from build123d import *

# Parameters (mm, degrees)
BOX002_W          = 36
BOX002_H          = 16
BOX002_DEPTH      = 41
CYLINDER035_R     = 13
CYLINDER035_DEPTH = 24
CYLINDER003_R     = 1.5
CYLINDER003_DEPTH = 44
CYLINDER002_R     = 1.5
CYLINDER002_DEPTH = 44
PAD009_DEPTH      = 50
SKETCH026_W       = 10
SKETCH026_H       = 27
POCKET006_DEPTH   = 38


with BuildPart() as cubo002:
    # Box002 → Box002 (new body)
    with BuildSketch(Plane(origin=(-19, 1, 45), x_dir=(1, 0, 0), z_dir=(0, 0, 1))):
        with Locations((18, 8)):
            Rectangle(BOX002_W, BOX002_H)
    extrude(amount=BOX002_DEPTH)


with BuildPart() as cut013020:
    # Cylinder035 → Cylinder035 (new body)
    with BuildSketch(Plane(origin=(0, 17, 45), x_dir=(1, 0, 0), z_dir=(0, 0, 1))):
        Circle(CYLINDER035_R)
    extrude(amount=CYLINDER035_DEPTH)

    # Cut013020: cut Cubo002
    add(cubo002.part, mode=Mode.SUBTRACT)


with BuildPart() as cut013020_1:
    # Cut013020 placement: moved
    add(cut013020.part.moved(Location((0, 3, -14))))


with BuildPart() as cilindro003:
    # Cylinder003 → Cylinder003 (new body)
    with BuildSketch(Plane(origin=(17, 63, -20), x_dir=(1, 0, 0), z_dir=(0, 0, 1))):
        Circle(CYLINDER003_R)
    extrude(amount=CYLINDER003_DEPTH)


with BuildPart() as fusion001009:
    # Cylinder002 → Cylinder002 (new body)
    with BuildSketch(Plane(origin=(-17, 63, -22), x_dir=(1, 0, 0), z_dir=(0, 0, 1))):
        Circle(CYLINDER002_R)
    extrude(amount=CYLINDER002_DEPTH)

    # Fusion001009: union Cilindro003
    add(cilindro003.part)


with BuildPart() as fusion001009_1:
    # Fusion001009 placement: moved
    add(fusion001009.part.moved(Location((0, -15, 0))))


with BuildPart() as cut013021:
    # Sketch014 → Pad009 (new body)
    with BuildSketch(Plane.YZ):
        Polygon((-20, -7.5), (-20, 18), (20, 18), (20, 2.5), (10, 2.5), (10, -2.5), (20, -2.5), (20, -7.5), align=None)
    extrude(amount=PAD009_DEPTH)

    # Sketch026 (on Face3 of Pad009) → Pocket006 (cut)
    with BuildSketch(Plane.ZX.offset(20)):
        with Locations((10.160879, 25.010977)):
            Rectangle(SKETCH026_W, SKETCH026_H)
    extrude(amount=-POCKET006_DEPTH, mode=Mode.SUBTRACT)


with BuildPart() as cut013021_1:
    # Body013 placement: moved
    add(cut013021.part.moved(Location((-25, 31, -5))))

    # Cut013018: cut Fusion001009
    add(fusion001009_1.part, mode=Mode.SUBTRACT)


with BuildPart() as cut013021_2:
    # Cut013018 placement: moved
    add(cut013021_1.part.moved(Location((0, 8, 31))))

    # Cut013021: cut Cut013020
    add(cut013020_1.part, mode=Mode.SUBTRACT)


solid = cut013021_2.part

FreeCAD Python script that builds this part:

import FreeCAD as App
import Part
import Sketcher

V = App.Vector
Q = App.Units.Quantity

doc = App.newDocument("Part")
body = doc.addObject("PartDesign::Body", "Body")

sketch1 = doc.addObject("Sketcher::SketchObject", "Sketch")
body.addObject(sketch1)
sketch1.AttachmentSupport = (doc.XY_Plane, [""])
sketch1.MapMode = "FlatFace"
sketch1.AttachmentOffset = App.Placement(V(0, 0, 45), App.Rotation())
sketch1.addGeometry([
    Part.LineSegment(V(-19, 17, 0), V(-19, 1, 0)),
    Part.LineSegment(V(-19, 1, 0), V(17, 1, 0)),
    Part.LineSegment(V(17, 1, 0), V(17, 17, 0)),
    Part.LineSegment(V(17, 17, 0), V(-19, 17, 0)),
], False)
sketch1.addConstraint([
    Sketcher.Constraint("Coincident", 0, 2, 1, 1),
    Sketcher.Constraint("Coincident", 1, 2, 2, 1),
    Sketcher.Constraint("Coincident", 2, 2, 3, 1),
    Sketcher.Constraint("Coincident", 3, 2, 0, 1),
    Sketcher.Constraint("Vertical", 0),
    Sketcher.Constraint("Horizontal", 1),
    Sketcher.Constraint("Vertical", 2),
    Sketcher.Constraint("Horizontal", 3),
    Sketcher.Constraint("DistanceX", 1, 1, 1, 2, Q("36 mm")),
    Sketcher.Constraint("DistanceY", 0, 2, 0, 1, Q("16 mm")),
    Sketcher.Constraint("DistanceX", 0, 2, -1, 1, Q("19 mm")),
    Sketcher.Constraint("DistanceY", -1, 1, 0, 2, Q("1 mm")),
])
pad1 = doc.addObject("PartDesign::Pad", "Pad")
body.addObject(pad1)
pad1.Profile = sketch1
pad1.Length = 41
body2 = doc.addObject("PartDesign::Body", "Body001")

sketch2 = doc.addObject("Sketcher::SketchObject", "Sketch001")
body2.addObject(sketch2)
sketch2.AttachmentSupport = (doc.getObject("XY_Plane001"), [""])
sketch2.MapMode = "FlatFace"
sketch2.AttachmentOffset = App.Placement(V(0, 0, 45), App.Rotation())
sketch2.addGeometry(Part.Circle(V(0, 17, 0), V(0, 0, 1), 13), False)
sketch2.addConstraint([
    Sketcher.Constraint("PointOnObject", 0, 3, -2),
    Sketcher.Constraint("Diameter", 0, Q("26 mm")),
    Sketcher.Constraint("DistanceY", -1, 1, 0, 3, Q("17 mm")),
])
pad2 = doc.addObject("PartDesign::Pad", "Pad001")
body2.addObject(pad2)
pad2.Profile = sketch2
pad2.Length = 24
doc.recompute()

boolean = doc.addObject("PartDesign::Boolean", "Boolean")
body2.addObject(boolean)
boolean.Type = "Cut"
boolean.addObjects([body])
body3 = doc.addObject("PartDesign::Body", "Body002")
doc.recompute()

body2.Placement = App.Placement(V(0, 3, -14), App.Rotation(V(0, 0, 1), 0))
boolean2 = doc.addObject("PartDesign::Boolean", "Boolean001")
body3.addObject(boolean2)
boolean2.Type = "Fuse"
boolean2.addObjects([body2])
body4 = doc.addObject("PartDesign::Body", "Body003")

sketch3 = doc.addObject("Sketcher::SketchObject", "Sketch002")
body4.addObject(sketch3)
sketch3.AttachmentSupport = (doc.getObject("XY_Plane003"), [""])
sketch3.MapMode = "FlatFace"
sketch3.AttachmentOffset = App.Placement(V(0, 0, -20), App.Rotation())
sketch3.addGeometry(Part.Circle(V(17, 63, 0), V(0, 0, 1), 1.5), False)
sketch3.addConstraint([
    Sketcher.Constraint("Diameter", 0, Q("3 mm")),
    Sketcher.Constraint("DistanceX", -1, 1, 0, 3, Q("17 mm")),
    Sketcher.Constraint("DistanceY", -1, 1, 0, 3, Q("63 mm")),
])
pad3 = doc.addObject("PartDesign::Pad", "Pad002")
body4.addObject(pad3)
pad3.Profile = sketch3
pad3.Length = 44
body5 = doc.addObject("PartDesign::Body", "Body004")
body5.AllowCompound = True

sketch4 = doc.addObject("Sketcher::SketchObject", "Sketch003")
body5.addObject(sketch4)
sketch4.AttachmentSupport = (doc.getObject("XY_Plane004"), [""])
sketch4.MapMode = "FlatFace"
sketch4.AttachmentOffset = App.Placement(V(0, 0, -22), App.Rotation())
sketch4.addGeometry(Part.Circle(V(-17, 63, 0), V(0, 0, 1), 1.5), False)
sketch4.addConstraint([
    Sketcher.Constraint("Diameter", 0, Q("3 mm")),
    Sketcher.Constraint("DistanceX", 0, 3, -1, 1, Q("17 mm")),
    Sketcher.Constraint("DistanceY", -1, 1, 0, 3, Q("63 mm")),
])
pad4 = doc.addObject("PartDesign::Pad", "Pad003")
body5.addObject(pad4)
pad4.Profile = sketch4
pad4.Length = 44
doc.recompute()

boolean3 = doc.addObject("PartDesign::Boolean", "Boolean002")
body5.addObject(boolean3)
boolean3.Type = "Fuse"
boolean3.addObjects([body4])
body6 = doc.addObject("PartDesign::Body", "Body005")
body6.AllowCompound = True
doc.recompute()

body5.Placement = App.Placement(V(0, -15, 0), App.Rotation(V(0, 0, 1), 0))
boolean4 = doc.addObject("PartDesign::Boolean", "Boolean003")
body6.addObject(boolean4)
boolean4.Type = "Fuse"
boolean4.addObjects([body5])
body7 = doc.addObject("PartDesign::Body", "Body006")

sketch5 = doc.addObject("Sketcher::SketchObject", "Sketch004")
body7.addObject(sketch5)
sketch5.AttachmentSupport = (doc.getObject("YZ_Plane006"), [""])
sketch5.MapMode = "FlatFace"
sketch5.addGeometry([
    Part.LineSegment(V(-20, 18, 0), V(-20, -8, 0)),
    Part.LineSegment(V(-20, -8, 0), V(20, -8, 0)),
    Part.LineSegment(V(20, -8, 0), V(20, -2, 0)),
    Part.LineSegment(V(20, -2, 0), V(10, -2, 0)),
    Part.LineSegment(V(10, -2, 0), V(10, 2, 0)),
    Part.LineSegment(V(10, 2, 0), V(20, 2, 0)),
    Part.LineSegment(V(20, 2, 0), V(20, 18, 0)),
    Part.LineSegment(V(20, 18, 0), V(-20, 18, 0)),
], False)
sketch5.addConstraint([
    Sketcher.Constraint("Coincident", 0, 2, 1, 1),
    Sketcher.Constraint("Coincident", 1, 2, 2, 1),
    Sketcher.Constraint("Coincident", 2, 2, 3, 1),
    Sketcher.Constraint("Coincident", 3, 2, 4, 1),
    Sketcher.Constraint("Coincident", 4, 2, 5, 1),
    Sketcher.Constraint("Coincident", 5, 2, 6, 1),
    Sketcher.Constraint("Coincident", 6, 2, 7, 1),
    Sketcher.Constraint("Coincident", 7, 2, 0, 1),
    Sketcher.Constraint("Vertical", 0),
    Sketcher.Constraint("Horizontal", 1),
    Sketcher.Constraint("Vertical", 2),
    Sketcher.Constraint("Horizontal", 3),
    Sketcher.Constraint("Vertical", 4),
    Sketcher.Constraint("Horizontal", 5),
    Sketcher.Constraint("Vertical", 6),
    Sketcher.Constraint("Horizontal", 7),
    Sketcher.Constraint("Symmetric", 2, 2, 5, 2, -1),
    Sketcher.Constraint("Equal", 2, 4),
    Sketcher.Constraint("DistanceX", 1, 1, 1, 2, Q("40 mm")),
    Sketcher.Constraint("DistanceX", 3, 2, 3, 1, Q("10 mm")),
    Sketcher.Constraint("DistanceY", 2, 1, 2, 2, Q("5 mm")),
    Sketcher.Constraint("DistanceY", 0, 2, 0, 1, Q("25.5 mm")),
    Sketcher.Constraint("DistanceX", 0, 2, -1, 1, Q("20 mm")),
])
pad5 = doc.addObject("PartDesign::Pad", "Pad004")
body7.addObject(pad5)
pad5.Profile = sketch5
pad5.Length = 50

sketch6 = doc.addObject("Sketcher::SketchObject", "Sketch005")
body7.addObject(sketch6)
sketch6.AttachmentSupport = (doc.getObject("XZ_Plane006"), [""])
sketch6.MapMode = "FlatFace"
sketch6.AttachmentOffset = App.Placement(V(0, 0, -20), App.Rotation())
sketch6.addGeometry([
    Part.LineSegment(V(39, 5, 0), V(12, 5, 0)),
    Part.LineSegment(V(12, 5, 0), V(12, 15, 0)),
    Part.LineSegment(V(12, 15, 0), V(39, 15, 0)),
    Part.LineSegment(V(39, 15, 0), V(39, 5, 0)),
], False)
sketch6.addConstraint([
    Sketcher.Constraint("Coincident", 0, 2, 1, 1),
    Sketcher.Constraint("Coincident", 1, 2, 2, 1),
    Sketcher.Constraint("Coincident", 2, 2, 3, 1),
    Sketcher.Constraint("Coincident", 3, 2, 0, 1),
    Sketcher.Constraint("Horizontal", 0),
    Sketcher.Constraint("Vertical", 1),
    Sketcher.Constraint("Horizontal", 2),
    Sketcher.Constraint("Vertical", 3),
    Sketcher.Constraint("DistanceX", 0, 2, 0, 1, Q("27 mm")),
    Sketcher.Constraint("DistanceY", 1, 1, 1, 2, Q("10 mm")),
    Sketcher.Constraint("DistanceY", -1, 1, 0, 2, Q("5.160879 mm")),
    Sketcher.Constraint("DistanceX", -1, 1, 0, 2, Q("11.510977 mm")),
])
pocket1 = doc.addObject("PartDesign::Pocket", "Pocket")
body7.addObject(pocket1)
pocket1.Profile = sketch6
pocket1.Length = 38
pocket1.Reversed = True
body8 = doc.addObject("PartDesign::Body", "Body007")
doc.recompute()

body7.Placement = App.Placement(V(-25, 31, -5), App.Rotation(V(0, 0, 1), 0))
boolean5 = doc.addObject("PartDesign::Boolean", "Boolean004")
body8.addObject(boolean5)
boolean5.Type = "Fuse"
boolean5.addObjects([body7])
doc.recompute()

boolean6 = doc.addObject("PartDesign::Boolean", "Boolean005")
body8.addObject(boolean6)
boolean6.Type = "Cut"
boolean6.addObjects([body6])
body9 = doc.addObject("PartDesign::Body", "Body008")
doc.recompute()

body8.Placement = App.Placement(V(0, 8, 31), App.Rotation(V(0, 0, 1), 0))
boolean7 = doc.addObject("PartDesign::Boolean", "Boolean006")
body9.addObject(boolean7)
boolean7.Type = "Fuse"
boolean7.addObjects([body8])
doc.recompute()

boolean8 = doc.addObject("PartDesign::Boolean", "Boolean007")
body9.addObject(boolean8)
boolean8.Type = "Cut"
boolean8.addObjects([body3])

doc.recompute()
